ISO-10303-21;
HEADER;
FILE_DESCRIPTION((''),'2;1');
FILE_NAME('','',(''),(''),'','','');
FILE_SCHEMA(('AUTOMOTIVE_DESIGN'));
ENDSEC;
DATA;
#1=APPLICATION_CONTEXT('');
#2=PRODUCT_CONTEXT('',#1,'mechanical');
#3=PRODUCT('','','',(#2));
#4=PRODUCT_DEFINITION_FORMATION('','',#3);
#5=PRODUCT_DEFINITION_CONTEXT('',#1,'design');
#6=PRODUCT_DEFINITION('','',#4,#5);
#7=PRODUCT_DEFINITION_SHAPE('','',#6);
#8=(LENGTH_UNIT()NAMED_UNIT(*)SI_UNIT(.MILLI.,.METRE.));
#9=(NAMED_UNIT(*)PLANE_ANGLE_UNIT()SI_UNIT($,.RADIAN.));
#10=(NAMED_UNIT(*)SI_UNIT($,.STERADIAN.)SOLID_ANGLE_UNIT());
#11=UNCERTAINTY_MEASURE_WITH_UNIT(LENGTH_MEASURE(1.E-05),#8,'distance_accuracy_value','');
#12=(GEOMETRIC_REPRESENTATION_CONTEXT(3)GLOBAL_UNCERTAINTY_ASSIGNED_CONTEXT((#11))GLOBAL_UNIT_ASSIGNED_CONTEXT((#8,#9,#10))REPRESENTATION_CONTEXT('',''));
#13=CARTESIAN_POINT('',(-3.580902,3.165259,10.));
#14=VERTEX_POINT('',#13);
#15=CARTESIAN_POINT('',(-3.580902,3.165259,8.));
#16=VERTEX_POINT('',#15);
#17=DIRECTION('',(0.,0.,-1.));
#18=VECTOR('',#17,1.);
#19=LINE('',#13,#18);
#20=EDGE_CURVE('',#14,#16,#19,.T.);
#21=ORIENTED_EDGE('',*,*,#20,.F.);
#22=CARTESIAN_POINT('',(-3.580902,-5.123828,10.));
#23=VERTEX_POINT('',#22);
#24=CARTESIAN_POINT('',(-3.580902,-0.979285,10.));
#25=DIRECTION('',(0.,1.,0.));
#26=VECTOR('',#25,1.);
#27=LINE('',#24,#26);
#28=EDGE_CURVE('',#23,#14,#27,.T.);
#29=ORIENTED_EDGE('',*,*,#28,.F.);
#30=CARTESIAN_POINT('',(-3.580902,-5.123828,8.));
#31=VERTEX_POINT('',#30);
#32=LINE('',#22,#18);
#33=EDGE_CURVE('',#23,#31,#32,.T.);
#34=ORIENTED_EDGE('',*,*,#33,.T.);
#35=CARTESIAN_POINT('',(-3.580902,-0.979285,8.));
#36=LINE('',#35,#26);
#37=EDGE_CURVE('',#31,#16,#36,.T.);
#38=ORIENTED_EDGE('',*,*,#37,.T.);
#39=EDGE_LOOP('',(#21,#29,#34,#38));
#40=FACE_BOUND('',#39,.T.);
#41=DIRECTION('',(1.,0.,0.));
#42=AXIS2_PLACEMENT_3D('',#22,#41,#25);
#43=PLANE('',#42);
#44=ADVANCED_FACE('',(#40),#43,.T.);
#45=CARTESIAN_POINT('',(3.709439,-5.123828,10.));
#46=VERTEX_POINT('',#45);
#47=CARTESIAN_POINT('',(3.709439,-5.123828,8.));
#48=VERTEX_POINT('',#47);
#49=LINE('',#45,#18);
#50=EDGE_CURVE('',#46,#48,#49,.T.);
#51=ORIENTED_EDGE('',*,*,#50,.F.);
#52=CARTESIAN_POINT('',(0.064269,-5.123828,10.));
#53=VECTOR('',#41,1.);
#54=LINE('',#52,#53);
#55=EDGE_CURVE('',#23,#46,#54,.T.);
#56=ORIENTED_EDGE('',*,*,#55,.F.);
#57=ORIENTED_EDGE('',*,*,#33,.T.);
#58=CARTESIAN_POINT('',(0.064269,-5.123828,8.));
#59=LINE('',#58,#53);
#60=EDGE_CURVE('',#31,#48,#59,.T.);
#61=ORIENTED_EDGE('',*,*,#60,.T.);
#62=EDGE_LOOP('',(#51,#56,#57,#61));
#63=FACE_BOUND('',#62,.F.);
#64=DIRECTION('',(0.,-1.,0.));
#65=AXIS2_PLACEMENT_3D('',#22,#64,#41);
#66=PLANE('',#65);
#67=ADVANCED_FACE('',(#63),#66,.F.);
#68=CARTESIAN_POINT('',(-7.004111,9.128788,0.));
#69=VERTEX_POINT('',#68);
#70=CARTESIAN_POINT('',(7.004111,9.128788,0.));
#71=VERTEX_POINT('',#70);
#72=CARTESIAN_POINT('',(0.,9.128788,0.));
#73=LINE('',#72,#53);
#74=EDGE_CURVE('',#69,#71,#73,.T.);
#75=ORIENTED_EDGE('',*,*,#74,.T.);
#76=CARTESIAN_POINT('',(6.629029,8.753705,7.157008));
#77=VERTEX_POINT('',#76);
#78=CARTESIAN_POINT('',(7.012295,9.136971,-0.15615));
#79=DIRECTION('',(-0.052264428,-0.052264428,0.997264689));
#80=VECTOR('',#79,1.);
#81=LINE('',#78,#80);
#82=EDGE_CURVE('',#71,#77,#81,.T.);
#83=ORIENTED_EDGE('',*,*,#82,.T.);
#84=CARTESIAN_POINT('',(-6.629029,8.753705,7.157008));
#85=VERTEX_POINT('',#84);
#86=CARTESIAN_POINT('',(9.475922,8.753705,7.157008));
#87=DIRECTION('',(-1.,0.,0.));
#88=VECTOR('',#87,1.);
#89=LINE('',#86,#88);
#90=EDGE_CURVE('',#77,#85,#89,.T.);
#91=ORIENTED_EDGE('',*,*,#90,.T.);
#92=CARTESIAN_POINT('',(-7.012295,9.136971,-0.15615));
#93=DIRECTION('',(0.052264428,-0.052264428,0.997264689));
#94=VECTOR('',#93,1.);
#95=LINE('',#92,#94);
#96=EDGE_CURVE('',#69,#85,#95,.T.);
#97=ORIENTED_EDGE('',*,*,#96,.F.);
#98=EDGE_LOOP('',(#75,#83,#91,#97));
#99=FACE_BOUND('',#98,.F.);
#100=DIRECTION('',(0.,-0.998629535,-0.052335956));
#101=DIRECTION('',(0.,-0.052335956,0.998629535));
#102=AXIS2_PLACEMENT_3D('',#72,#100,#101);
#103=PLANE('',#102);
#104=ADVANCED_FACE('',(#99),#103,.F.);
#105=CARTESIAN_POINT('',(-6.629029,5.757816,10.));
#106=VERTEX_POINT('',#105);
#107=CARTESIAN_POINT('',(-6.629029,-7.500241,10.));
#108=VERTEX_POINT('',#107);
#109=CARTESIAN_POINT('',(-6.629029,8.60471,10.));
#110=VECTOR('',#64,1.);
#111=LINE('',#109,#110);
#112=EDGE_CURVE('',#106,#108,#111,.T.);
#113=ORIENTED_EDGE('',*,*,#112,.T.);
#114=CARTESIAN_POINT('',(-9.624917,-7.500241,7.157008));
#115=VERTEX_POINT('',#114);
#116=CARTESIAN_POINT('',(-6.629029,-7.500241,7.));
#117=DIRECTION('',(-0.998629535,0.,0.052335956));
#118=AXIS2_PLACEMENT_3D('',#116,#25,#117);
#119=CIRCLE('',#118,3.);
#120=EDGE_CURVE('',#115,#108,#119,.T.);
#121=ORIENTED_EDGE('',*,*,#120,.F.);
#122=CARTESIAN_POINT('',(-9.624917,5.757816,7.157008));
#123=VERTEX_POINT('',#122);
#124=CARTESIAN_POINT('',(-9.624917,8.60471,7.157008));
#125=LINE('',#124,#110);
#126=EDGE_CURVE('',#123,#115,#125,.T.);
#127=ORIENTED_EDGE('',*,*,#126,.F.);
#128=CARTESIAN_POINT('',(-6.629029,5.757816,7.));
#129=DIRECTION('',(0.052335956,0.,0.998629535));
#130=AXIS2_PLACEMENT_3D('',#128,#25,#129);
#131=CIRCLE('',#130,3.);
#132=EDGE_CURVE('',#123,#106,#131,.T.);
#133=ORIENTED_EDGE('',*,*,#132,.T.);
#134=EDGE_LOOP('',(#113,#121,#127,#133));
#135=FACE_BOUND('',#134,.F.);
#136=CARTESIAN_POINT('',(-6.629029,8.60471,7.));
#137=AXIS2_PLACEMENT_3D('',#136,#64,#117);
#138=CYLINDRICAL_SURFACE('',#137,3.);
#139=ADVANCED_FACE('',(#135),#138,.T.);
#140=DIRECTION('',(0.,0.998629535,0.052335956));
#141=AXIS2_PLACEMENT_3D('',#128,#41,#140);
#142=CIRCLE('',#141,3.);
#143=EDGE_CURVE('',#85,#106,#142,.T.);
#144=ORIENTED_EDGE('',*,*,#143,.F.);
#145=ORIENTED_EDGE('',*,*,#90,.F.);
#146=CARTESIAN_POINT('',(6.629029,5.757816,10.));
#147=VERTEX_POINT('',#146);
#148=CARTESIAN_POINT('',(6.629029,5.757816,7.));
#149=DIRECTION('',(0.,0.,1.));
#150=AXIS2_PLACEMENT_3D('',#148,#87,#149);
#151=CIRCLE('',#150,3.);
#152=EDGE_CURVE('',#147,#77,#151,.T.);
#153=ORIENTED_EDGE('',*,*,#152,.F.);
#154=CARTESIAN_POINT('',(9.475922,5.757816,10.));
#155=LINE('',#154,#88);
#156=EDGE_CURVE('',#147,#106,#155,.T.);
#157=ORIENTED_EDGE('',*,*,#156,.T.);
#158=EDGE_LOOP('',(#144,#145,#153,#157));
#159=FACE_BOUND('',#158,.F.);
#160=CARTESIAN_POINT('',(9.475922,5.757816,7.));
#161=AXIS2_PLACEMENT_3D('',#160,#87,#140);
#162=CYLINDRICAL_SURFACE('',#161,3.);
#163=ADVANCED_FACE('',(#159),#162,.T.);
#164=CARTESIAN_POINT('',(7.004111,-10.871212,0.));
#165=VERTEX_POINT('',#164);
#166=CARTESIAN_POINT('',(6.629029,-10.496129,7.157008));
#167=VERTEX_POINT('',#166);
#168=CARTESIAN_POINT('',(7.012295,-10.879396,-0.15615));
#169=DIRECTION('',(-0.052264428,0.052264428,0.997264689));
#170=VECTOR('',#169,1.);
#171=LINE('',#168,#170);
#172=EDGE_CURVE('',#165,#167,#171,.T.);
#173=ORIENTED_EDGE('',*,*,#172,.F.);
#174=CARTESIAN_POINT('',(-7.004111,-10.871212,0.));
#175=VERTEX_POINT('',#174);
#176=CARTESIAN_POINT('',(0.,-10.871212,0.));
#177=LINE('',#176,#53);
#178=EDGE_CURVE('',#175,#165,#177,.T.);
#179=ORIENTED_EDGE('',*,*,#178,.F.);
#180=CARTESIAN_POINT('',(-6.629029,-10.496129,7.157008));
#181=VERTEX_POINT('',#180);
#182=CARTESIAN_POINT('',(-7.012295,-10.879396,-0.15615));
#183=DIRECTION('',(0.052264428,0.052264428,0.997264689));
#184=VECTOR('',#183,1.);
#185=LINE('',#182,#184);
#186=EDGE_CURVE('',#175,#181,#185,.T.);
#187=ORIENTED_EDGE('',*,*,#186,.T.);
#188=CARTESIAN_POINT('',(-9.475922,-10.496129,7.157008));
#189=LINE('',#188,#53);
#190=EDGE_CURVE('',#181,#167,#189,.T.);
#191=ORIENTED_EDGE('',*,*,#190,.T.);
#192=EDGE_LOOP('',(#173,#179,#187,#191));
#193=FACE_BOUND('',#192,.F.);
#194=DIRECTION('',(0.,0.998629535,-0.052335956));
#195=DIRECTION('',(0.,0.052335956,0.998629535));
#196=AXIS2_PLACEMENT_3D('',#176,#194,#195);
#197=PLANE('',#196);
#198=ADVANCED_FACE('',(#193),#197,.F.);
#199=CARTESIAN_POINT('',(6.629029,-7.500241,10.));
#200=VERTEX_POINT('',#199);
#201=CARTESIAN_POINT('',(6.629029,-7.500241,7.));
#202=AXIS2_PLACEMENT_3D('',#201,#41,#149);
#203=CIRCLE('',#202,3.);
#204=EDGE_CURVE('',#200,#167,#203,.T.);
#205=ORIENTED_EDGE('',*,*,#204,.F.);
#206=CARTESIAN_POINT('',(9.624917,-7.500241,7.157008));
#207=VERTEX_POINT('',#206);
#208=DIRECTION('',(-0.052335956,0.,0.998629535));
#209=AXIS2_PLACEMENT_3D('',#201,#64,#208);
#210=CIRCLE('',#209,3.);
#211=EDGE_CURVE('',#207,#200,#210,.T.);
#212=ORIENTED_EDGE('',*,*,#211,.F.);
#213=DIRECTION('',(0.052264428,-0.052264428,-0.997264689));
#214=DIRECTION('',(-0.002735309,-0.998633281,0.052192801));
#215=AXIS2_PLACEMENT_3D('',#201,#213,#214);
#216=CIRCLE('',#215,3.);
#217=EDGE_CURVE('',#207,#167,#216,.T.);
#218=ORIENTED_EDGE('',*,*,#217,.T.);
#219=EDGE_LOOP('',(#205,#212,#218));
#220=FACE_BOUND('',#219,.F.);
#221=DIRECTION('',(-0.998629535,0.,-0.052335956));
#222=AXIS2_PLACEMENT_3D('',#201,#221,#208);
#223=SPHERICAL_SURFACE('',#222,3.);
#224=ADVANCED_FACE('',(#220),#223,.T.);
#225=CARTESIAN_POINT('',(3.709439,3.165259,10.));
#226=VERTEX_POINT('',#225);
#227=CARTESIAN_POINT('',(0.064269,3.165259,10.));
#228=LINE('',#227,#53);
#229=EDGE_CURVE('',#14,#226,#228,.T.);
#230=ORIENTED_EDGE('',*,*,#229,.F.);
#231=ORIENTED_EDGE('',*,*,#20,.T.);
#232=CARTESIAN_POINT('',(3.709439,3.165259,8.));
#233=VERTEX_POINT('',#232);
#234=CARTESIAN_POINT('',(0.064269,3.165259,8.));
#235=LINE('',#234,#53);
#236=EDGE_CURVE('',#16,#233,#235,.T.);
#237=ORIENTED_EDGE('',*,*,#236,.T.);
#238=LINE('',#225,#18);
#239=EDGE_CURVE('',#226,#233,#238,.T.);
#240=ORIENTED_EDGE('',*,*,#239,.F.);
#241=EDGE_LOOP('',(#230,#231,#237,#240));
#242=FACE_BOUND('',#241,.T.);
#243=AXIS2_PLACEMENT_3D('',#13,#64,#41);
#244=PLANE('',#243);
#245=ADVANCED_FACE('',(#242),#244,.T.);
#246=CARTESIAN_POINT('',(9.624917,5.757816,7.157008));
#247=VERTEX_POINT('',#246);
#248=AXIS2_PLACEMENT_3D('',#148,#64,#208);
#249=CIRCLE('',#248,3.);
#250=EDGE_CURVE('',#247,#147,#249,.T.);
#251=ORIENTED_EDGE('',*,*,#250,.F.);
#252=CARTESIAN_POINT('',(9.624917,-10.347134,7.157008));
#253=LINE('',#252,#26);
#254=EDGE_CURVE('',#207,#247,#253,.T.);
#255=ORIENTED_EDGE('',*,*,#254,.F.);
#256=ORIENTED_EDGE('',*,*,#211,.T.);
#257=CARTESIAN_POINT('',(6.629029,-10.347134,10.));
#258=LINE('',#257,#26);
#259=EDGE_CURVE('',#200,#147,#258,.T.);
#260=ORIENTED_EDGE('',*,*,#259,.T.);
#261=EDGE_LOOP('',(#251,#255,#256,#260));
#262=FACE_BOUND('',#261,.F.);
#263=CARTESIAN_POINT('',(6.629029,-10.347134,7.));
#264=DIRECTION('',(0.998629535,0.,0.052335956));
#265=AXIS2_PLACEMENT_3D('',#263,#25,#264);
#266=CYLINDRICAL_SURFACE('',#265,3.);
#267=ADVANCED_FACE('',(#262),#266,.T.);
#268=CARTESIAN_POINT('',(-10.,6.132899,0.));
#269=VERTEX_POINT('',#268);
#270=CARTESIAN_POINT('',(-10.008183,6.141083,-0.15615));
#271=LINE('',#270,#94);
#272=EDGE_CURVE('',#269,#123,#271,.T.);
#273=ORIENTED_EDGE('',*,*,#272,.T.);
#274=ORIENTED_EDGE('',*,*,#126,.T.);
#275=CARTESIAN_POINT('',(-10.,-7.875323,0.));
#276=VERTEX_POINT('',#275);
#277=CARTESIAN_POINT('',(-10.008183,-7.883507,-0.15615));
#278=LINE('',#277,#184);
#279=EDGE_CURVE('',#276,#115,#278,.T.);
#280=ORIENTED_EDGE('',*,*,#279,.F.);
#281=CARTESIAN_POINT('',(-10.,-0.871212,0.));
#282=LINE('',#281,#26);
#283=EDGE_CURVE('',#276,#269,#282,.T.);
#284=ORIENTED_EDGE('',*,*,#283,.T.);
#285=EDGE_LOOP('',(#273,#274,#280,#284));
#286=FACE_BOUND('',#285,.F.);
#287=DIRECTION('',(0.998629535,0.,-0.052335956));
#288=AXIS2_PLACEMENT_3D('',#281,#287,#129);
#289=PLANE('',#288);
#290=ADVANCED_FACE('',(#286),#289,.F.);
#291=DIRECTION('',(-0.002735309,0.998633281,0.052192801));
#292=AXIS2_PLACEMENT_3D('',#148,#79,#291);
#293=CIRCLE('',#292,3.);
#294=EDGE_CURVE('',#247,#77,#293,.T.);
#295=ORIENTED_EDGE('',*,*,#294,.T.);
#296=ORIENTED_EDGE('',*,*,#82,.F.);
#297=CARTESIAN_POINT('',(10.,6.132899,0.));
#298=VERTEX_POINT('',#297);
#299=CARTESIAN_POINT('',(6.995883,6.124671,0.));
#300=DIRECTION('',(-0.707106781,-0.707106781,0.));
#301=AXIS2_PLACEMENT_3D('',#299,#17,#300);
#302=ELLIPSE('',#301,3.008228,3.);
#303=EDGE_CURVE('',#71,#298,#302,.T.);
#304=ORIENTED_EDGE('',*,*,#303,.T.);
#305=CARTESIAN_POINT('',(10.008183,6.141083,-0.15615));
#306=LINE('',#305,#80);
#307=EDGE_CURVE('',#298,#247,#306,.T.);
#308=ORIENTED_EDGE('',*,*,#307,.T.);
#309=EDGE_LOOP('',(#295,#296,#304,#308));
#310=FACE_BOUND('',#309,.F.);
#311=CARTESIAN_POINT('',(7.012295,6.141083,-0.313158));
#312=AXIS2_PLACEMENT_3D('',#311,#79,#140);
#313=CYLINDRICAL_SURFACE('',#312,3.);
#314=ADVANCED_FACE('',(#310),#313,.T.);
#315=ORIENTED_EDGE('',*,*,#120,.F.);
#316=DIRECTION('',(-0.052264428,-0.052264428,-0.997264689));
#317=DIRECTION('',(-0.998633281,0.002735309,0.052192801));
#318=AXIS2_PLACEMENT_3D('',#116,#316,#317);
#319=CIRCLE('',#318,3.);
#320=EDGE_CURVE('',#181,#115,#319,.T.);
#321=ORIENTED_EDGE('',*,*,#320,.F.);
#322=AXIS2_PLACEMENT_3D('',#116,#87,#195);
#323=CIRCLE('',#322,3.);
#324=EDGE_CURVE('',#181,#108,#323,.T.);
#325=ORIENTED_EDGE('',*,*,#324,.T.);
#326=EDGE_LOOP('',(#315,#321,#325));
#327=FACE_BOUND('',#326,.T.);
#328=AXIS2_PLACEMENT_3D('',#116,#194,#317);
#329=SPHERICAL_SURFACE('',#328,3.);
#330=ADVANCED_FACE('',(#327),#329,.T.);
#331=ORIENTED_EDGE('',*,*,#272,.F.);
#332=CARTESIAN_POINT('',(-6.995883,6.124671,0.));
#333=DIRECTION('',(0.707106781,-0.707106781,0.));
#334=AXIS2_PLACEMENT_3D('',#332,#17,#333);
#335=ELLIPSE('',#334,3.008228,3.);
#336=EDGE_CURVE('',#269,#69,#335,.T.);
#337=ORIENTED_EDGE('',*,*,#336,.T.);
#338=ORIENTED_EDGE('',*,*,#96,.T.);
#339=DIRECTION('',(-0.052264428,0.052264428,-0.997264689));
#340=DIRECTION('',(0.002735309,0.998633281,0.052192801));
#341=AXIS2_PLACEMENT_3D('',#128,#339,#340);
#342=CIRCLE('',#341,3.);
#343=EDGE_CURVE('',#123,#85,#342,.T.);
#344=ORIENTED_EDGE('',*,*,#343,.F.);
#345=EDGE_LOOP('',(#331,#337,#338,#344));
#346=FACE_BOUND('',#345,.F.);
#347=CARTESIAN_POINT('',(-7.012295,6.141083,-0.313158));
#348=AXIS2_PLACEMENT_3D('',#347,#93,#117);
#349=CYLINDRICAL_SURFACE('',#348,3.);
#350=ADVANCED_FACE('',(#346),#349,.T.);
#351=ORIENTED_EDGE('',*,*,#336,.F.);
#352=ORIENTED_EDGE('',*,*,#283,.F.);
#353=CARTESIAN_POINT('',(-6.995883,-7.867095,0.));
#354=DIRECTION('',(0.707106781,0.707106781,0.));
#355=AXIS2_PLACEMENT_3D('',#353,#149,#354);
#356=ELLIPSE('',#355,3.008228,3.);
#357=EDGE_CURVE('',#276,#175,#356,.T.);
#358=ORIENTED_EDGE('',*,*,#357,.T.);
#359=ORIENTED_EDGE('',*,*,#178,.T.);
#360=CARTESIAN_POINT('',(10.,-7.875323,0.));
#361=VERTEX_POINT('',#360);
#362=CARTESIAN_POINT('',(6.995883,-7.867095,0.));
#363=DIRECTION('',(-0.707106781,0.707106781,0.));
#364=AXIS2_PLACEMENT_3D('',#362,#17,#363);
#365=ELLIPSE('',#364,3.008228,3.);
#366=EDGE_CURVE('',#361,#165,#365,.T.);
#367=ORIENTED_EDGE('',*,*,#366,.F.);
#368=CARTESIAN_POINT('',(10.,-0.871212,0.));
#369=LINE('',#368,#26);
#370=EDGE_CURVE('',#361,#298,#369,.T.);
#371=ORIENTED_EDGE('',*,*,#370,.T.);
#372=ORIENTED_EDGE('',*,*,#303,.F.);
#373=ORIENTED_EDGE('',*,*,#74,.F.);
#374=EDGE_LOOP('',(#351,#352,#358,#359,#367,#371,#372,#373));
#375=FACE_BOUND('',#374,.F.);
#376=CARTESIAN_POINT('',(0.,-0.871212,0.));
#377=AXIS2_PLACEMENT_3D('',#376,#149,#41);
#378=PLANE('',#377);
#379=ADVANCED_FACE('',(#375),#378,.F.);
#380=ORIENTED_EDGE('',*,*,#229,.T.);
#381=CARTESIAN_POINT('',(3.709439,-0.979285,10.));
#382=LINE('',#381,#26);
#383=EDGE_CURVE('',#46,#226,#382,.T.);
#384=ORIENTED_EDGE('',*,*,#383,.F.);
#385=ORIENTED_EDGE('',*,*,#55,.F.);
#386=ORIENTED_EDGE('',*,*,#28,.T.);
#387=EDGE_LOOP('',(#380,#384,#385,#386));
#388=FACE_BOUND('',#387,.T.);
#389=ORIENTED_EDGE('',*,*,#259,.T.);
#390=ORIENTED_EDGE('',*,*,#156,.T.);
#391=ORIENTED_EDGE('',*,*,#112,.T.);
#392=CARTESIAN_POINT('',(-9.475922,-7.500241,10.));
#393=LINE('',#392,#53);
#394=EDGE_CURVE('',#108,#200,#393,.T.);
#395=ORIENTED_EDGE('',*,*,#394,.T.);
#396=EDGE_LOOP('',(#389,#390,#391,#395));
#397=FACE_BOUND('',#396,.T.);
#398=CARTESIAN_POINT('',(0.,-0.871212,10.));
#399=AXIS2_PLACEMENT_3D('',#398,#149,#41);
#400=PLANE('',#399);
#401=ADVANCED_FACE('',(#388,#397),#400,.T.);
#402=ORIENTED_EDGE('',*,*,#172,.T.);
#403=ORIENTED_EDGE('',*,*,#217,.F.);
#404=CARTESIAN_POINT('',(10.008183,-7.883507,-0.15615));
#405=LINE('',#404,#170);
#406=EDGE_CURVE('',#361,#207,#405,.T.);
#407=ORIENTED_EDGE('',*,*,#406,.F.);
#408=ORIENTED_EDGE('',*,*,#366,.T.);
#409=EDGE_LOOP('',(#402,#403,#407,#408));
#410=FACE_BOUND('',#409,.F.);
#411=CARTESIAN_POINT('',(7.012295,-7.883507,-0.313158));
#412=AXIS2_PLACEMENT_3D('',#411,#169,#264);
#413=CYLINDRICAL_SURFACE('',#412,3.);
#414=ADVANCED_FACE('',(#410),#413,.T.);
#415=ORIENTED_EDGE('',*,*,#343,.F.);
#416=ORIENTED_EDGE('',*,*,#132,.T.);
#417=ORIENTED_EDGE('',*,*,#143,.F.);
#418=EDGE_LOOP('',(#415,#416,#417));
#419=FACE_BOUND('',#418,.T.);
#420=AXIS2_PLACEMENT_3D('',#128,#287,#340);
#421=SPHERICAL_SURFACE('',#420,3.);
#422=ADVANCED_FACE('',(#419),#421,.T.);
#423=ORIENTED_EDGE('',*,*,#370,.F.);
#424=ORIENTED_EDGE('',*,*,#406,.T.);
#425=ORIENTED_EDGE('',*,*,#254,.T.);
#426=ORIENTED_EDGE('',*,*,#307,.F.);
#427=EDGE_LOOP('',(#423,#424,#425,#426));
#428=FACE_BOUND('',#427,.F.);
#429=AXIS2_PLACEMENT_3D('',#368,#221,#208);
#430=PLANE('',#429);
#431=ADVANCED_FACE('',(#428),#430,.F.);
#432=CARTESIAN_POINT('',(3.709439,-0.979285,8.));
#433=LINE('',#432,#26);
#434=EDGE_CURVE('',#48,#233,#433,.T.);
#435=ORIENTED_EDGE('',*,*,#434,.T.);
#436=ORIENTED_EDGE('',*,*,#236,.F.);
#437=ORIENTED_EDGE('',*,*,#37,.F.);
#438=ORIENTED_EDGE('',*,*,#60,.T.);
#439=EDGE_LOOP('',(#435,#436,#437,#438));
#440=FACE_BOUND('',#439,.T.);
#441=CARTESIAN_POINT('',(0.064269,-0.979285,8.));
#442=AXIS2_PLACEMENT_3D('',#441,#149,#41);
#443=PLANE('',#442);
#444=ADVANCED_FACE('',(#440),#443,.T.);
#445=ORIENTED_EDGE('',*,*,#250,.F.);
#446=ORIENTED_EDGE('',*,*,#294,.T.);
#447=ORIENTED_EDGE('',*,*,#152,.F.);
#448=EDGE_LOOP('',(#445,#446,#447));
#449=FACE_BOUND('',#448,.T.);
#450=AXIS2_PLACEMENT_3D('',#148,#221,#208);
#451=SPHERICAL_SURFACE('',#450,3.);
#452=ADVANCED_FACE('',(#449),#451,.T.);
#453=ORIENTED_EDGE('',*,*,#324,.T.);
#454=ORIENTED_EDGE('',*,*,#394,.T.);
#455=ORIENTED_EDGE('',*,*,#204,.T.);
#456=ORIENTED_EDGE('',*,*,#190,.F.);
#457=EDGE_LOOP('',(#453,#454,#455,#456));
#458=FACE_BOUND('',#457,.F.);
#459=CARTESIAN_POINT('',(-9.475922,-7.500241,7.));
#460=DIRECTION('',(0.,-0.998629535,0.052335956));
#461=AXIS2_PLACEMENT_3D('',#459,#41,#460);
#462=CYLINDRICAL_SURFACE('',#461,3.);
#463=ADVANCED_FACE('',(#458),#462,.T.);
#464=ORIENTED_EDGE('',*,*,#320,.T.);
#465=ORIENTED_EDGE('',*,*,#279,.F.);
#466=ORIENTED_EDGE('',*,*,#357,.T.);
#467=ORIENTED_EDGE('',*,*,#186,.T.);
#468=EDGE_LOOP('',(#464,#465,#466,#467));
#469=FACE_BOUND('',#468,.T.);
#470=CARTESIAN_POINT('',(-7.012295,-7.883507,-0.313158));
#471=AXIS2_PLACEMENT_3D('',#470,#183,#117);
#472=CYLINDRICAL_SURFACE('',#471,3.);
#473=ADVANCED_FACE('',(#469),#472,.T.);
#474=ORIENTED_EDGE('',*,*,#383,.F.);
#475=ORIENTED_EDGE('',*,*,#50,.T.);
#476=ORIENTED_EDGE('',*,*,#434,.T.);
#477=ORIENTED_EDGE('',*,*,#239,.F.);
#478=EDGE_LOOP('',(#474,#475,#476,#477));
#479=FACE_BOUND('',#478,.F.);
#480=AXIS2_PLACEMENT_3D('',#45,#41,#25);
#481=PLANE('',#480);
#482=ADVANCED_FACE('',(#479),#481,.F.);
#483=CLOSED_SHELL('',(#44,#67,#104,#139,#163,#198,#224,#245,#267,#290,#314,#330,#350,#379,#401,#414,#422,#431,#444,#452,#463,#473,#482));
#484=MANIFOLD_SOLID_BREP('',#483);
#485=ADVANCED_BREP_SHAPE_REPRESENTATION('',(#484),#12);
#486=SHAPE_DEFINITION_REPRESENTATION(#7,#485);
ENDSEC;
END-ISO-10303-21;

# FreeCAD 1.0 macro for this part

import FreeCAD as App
import Part
import Sketcher
Q = App.Units.Quantity


def edges_at(feature, points):
    """Names of the edges that pass closest to the given points."""
    edges = feature.Shape.Edges
    near = lambda p: min(range(len(edges)), key=lambda i: edges[i].distToShape(Part.Vertex(*p))[0])
    return sorted({f"Edge{near(p) + 1}" for p in points})

doc = App.newDocument("Part")
body = doc.addObject("PartDesign::Body", "Body")

# Sketch on XY plane
sketch1 = body.newObject("Sketcher::SketchObject", "Sketch")
sketch1.AttachmentSupport = (doc.getObject("XY_Plane"), [""])
sketch1.MapMode = "FlatFace"
sketch1.addGeometry([
    Part.LineSegment(App.Vector(-10, 9.128788, 0), App.Vector(-10, -10.871212, 0)),
    Part.LineSegment(App.Vector(-10, -10.871212, 0), App.Vector(10, -10.871212, 0)),
    Part.LineSegment(App.Vector(10, -10.871212, 0), App.Vector(10, 9.128788, 0)),
    Part.LineSegment(App.Vector(10, 9.128788, 0), App.Vector(-10, 9.128788, 0)),
], False)
sketch1.addConstraint([
    Sketcher.Constraint("Coincident", 0, 2, 1, 1),
    Sketcher.Constraint("Coincident", 1, 2, 2, 1),
    Sketcher.Constraint("Coincident", 2, 2, 3, 1),
    Sketcher.Constraint("Coincident", 3, 2, 0, 1),
    Sketcher.Constraint("Vertical", 0),
    Sketcher.Constraint("Horizontal", 1),
    Sketcher.Constraint("Vertical", 2),
    Sketcher.Constraint("Horizontal", 3),
    Sketcher.Constraint("Equal", 3, 0),
    Sketcher.Constraint("DistanceX", 1, 1, 1, 2, Q("20 mm")),
    Sketcher.Constraint("DistanceX", 0, 2, -1, 1, Q("10 mm")),
    Sketcher.Constraint("DistanceY", 0, 2, -1, 1, Q("10.871212 mm")),
])
pad1 = body.newObject("PartDesign::Pad", "Pad")
pad1.Profile = sketch1
pad1.Length = 10
pad1.TaperAngle = -3
doc.recompute()

fillet = body.newObject("PartDesign::Fillet", "Fillet")
fillet.Base = (pad1, edges_at(pad1, [
    (0, 8.605, 10),
    (-9.738, 8.867, 5),
    (-9.476, -0.871, 10),
    (-9.738, -10.609, 5),
    (0, -10.347, 10),
    (9.476, -0.871, 10),
    (9.738, 8.867, 5),
    (9.738, -10.609, 5),
]))
fillet.Radius = 3

# Sketch on XY plane
sketch2 = body.newObject("Sketcher::SketchObject", "Sketch001")
sketch2.AttachmentSupport = (doc.getObject("XY_Plane"), [""])
sketch2.MapMode = "FlatFace"
sketch2.AttachmentOffset = App.Placement(App.Vector(0, 0, 10), App.Rotation())
sketch2.addGeometry([
    Part.LineSegment(App.Vector(-3.580902, 3.165259, 0), App.Vector(-3.580902, -5.123828, 0)),
    Part.LineSegment(App.Vector(-3.580902, -5.123828, 0), App.Vector(3.709439, -5.123828, 0)),
    Part.LineSegment(App.Vector(3.709439, -5.123828, 0), App.Vector(3.709439, 3.165259, 0)),
    Part.LineSegment(App.Vector(3.709439, 3.165259, 0), App.Vector(-3.580902, 3.165259, 0)),
], False)
sketch2.addConstraint([
    Sketcher.Constraint("Coincident", 0, 2, 1, 1),
    Sketcher.Constraint("Coincident", 1, 2, 2, 1),
    Sketcher.Constraint("Coincident", 2, 2, 3, 1),
    Sketcher.Constraint("Coincident", 3, 2, 0, 1),
    Sketcher.Constraint("Vertical", 0),
    Sketcher.Constraint("Horizontal", 1),
    Sketcher.Constraint("Vertical", 2),
    Sketcher.Constraint("Horizontal", 3),
    Sketcher.Constraint("DistanceX", 1, 1, 1, 2, Q("7.290341 mm")),
    Sketcher.Constraint("DistanceX", 0, 2, -1, 1, Q("3.580902 mm")),
    Sketcher.Constraint("DistanceY", 0, 2, 0, 1, Q("8.289087 mm")),
    Sketcher.Constraint("DistanceY", 0, 2, -1, 1, Q("5.123828 mm")),
])
pocket1 = body.newObject("PartDesign::Pocket", "Pocket")
pocket1.Profile = sketch2
pocket1.Length = 2

doc.recompute()
